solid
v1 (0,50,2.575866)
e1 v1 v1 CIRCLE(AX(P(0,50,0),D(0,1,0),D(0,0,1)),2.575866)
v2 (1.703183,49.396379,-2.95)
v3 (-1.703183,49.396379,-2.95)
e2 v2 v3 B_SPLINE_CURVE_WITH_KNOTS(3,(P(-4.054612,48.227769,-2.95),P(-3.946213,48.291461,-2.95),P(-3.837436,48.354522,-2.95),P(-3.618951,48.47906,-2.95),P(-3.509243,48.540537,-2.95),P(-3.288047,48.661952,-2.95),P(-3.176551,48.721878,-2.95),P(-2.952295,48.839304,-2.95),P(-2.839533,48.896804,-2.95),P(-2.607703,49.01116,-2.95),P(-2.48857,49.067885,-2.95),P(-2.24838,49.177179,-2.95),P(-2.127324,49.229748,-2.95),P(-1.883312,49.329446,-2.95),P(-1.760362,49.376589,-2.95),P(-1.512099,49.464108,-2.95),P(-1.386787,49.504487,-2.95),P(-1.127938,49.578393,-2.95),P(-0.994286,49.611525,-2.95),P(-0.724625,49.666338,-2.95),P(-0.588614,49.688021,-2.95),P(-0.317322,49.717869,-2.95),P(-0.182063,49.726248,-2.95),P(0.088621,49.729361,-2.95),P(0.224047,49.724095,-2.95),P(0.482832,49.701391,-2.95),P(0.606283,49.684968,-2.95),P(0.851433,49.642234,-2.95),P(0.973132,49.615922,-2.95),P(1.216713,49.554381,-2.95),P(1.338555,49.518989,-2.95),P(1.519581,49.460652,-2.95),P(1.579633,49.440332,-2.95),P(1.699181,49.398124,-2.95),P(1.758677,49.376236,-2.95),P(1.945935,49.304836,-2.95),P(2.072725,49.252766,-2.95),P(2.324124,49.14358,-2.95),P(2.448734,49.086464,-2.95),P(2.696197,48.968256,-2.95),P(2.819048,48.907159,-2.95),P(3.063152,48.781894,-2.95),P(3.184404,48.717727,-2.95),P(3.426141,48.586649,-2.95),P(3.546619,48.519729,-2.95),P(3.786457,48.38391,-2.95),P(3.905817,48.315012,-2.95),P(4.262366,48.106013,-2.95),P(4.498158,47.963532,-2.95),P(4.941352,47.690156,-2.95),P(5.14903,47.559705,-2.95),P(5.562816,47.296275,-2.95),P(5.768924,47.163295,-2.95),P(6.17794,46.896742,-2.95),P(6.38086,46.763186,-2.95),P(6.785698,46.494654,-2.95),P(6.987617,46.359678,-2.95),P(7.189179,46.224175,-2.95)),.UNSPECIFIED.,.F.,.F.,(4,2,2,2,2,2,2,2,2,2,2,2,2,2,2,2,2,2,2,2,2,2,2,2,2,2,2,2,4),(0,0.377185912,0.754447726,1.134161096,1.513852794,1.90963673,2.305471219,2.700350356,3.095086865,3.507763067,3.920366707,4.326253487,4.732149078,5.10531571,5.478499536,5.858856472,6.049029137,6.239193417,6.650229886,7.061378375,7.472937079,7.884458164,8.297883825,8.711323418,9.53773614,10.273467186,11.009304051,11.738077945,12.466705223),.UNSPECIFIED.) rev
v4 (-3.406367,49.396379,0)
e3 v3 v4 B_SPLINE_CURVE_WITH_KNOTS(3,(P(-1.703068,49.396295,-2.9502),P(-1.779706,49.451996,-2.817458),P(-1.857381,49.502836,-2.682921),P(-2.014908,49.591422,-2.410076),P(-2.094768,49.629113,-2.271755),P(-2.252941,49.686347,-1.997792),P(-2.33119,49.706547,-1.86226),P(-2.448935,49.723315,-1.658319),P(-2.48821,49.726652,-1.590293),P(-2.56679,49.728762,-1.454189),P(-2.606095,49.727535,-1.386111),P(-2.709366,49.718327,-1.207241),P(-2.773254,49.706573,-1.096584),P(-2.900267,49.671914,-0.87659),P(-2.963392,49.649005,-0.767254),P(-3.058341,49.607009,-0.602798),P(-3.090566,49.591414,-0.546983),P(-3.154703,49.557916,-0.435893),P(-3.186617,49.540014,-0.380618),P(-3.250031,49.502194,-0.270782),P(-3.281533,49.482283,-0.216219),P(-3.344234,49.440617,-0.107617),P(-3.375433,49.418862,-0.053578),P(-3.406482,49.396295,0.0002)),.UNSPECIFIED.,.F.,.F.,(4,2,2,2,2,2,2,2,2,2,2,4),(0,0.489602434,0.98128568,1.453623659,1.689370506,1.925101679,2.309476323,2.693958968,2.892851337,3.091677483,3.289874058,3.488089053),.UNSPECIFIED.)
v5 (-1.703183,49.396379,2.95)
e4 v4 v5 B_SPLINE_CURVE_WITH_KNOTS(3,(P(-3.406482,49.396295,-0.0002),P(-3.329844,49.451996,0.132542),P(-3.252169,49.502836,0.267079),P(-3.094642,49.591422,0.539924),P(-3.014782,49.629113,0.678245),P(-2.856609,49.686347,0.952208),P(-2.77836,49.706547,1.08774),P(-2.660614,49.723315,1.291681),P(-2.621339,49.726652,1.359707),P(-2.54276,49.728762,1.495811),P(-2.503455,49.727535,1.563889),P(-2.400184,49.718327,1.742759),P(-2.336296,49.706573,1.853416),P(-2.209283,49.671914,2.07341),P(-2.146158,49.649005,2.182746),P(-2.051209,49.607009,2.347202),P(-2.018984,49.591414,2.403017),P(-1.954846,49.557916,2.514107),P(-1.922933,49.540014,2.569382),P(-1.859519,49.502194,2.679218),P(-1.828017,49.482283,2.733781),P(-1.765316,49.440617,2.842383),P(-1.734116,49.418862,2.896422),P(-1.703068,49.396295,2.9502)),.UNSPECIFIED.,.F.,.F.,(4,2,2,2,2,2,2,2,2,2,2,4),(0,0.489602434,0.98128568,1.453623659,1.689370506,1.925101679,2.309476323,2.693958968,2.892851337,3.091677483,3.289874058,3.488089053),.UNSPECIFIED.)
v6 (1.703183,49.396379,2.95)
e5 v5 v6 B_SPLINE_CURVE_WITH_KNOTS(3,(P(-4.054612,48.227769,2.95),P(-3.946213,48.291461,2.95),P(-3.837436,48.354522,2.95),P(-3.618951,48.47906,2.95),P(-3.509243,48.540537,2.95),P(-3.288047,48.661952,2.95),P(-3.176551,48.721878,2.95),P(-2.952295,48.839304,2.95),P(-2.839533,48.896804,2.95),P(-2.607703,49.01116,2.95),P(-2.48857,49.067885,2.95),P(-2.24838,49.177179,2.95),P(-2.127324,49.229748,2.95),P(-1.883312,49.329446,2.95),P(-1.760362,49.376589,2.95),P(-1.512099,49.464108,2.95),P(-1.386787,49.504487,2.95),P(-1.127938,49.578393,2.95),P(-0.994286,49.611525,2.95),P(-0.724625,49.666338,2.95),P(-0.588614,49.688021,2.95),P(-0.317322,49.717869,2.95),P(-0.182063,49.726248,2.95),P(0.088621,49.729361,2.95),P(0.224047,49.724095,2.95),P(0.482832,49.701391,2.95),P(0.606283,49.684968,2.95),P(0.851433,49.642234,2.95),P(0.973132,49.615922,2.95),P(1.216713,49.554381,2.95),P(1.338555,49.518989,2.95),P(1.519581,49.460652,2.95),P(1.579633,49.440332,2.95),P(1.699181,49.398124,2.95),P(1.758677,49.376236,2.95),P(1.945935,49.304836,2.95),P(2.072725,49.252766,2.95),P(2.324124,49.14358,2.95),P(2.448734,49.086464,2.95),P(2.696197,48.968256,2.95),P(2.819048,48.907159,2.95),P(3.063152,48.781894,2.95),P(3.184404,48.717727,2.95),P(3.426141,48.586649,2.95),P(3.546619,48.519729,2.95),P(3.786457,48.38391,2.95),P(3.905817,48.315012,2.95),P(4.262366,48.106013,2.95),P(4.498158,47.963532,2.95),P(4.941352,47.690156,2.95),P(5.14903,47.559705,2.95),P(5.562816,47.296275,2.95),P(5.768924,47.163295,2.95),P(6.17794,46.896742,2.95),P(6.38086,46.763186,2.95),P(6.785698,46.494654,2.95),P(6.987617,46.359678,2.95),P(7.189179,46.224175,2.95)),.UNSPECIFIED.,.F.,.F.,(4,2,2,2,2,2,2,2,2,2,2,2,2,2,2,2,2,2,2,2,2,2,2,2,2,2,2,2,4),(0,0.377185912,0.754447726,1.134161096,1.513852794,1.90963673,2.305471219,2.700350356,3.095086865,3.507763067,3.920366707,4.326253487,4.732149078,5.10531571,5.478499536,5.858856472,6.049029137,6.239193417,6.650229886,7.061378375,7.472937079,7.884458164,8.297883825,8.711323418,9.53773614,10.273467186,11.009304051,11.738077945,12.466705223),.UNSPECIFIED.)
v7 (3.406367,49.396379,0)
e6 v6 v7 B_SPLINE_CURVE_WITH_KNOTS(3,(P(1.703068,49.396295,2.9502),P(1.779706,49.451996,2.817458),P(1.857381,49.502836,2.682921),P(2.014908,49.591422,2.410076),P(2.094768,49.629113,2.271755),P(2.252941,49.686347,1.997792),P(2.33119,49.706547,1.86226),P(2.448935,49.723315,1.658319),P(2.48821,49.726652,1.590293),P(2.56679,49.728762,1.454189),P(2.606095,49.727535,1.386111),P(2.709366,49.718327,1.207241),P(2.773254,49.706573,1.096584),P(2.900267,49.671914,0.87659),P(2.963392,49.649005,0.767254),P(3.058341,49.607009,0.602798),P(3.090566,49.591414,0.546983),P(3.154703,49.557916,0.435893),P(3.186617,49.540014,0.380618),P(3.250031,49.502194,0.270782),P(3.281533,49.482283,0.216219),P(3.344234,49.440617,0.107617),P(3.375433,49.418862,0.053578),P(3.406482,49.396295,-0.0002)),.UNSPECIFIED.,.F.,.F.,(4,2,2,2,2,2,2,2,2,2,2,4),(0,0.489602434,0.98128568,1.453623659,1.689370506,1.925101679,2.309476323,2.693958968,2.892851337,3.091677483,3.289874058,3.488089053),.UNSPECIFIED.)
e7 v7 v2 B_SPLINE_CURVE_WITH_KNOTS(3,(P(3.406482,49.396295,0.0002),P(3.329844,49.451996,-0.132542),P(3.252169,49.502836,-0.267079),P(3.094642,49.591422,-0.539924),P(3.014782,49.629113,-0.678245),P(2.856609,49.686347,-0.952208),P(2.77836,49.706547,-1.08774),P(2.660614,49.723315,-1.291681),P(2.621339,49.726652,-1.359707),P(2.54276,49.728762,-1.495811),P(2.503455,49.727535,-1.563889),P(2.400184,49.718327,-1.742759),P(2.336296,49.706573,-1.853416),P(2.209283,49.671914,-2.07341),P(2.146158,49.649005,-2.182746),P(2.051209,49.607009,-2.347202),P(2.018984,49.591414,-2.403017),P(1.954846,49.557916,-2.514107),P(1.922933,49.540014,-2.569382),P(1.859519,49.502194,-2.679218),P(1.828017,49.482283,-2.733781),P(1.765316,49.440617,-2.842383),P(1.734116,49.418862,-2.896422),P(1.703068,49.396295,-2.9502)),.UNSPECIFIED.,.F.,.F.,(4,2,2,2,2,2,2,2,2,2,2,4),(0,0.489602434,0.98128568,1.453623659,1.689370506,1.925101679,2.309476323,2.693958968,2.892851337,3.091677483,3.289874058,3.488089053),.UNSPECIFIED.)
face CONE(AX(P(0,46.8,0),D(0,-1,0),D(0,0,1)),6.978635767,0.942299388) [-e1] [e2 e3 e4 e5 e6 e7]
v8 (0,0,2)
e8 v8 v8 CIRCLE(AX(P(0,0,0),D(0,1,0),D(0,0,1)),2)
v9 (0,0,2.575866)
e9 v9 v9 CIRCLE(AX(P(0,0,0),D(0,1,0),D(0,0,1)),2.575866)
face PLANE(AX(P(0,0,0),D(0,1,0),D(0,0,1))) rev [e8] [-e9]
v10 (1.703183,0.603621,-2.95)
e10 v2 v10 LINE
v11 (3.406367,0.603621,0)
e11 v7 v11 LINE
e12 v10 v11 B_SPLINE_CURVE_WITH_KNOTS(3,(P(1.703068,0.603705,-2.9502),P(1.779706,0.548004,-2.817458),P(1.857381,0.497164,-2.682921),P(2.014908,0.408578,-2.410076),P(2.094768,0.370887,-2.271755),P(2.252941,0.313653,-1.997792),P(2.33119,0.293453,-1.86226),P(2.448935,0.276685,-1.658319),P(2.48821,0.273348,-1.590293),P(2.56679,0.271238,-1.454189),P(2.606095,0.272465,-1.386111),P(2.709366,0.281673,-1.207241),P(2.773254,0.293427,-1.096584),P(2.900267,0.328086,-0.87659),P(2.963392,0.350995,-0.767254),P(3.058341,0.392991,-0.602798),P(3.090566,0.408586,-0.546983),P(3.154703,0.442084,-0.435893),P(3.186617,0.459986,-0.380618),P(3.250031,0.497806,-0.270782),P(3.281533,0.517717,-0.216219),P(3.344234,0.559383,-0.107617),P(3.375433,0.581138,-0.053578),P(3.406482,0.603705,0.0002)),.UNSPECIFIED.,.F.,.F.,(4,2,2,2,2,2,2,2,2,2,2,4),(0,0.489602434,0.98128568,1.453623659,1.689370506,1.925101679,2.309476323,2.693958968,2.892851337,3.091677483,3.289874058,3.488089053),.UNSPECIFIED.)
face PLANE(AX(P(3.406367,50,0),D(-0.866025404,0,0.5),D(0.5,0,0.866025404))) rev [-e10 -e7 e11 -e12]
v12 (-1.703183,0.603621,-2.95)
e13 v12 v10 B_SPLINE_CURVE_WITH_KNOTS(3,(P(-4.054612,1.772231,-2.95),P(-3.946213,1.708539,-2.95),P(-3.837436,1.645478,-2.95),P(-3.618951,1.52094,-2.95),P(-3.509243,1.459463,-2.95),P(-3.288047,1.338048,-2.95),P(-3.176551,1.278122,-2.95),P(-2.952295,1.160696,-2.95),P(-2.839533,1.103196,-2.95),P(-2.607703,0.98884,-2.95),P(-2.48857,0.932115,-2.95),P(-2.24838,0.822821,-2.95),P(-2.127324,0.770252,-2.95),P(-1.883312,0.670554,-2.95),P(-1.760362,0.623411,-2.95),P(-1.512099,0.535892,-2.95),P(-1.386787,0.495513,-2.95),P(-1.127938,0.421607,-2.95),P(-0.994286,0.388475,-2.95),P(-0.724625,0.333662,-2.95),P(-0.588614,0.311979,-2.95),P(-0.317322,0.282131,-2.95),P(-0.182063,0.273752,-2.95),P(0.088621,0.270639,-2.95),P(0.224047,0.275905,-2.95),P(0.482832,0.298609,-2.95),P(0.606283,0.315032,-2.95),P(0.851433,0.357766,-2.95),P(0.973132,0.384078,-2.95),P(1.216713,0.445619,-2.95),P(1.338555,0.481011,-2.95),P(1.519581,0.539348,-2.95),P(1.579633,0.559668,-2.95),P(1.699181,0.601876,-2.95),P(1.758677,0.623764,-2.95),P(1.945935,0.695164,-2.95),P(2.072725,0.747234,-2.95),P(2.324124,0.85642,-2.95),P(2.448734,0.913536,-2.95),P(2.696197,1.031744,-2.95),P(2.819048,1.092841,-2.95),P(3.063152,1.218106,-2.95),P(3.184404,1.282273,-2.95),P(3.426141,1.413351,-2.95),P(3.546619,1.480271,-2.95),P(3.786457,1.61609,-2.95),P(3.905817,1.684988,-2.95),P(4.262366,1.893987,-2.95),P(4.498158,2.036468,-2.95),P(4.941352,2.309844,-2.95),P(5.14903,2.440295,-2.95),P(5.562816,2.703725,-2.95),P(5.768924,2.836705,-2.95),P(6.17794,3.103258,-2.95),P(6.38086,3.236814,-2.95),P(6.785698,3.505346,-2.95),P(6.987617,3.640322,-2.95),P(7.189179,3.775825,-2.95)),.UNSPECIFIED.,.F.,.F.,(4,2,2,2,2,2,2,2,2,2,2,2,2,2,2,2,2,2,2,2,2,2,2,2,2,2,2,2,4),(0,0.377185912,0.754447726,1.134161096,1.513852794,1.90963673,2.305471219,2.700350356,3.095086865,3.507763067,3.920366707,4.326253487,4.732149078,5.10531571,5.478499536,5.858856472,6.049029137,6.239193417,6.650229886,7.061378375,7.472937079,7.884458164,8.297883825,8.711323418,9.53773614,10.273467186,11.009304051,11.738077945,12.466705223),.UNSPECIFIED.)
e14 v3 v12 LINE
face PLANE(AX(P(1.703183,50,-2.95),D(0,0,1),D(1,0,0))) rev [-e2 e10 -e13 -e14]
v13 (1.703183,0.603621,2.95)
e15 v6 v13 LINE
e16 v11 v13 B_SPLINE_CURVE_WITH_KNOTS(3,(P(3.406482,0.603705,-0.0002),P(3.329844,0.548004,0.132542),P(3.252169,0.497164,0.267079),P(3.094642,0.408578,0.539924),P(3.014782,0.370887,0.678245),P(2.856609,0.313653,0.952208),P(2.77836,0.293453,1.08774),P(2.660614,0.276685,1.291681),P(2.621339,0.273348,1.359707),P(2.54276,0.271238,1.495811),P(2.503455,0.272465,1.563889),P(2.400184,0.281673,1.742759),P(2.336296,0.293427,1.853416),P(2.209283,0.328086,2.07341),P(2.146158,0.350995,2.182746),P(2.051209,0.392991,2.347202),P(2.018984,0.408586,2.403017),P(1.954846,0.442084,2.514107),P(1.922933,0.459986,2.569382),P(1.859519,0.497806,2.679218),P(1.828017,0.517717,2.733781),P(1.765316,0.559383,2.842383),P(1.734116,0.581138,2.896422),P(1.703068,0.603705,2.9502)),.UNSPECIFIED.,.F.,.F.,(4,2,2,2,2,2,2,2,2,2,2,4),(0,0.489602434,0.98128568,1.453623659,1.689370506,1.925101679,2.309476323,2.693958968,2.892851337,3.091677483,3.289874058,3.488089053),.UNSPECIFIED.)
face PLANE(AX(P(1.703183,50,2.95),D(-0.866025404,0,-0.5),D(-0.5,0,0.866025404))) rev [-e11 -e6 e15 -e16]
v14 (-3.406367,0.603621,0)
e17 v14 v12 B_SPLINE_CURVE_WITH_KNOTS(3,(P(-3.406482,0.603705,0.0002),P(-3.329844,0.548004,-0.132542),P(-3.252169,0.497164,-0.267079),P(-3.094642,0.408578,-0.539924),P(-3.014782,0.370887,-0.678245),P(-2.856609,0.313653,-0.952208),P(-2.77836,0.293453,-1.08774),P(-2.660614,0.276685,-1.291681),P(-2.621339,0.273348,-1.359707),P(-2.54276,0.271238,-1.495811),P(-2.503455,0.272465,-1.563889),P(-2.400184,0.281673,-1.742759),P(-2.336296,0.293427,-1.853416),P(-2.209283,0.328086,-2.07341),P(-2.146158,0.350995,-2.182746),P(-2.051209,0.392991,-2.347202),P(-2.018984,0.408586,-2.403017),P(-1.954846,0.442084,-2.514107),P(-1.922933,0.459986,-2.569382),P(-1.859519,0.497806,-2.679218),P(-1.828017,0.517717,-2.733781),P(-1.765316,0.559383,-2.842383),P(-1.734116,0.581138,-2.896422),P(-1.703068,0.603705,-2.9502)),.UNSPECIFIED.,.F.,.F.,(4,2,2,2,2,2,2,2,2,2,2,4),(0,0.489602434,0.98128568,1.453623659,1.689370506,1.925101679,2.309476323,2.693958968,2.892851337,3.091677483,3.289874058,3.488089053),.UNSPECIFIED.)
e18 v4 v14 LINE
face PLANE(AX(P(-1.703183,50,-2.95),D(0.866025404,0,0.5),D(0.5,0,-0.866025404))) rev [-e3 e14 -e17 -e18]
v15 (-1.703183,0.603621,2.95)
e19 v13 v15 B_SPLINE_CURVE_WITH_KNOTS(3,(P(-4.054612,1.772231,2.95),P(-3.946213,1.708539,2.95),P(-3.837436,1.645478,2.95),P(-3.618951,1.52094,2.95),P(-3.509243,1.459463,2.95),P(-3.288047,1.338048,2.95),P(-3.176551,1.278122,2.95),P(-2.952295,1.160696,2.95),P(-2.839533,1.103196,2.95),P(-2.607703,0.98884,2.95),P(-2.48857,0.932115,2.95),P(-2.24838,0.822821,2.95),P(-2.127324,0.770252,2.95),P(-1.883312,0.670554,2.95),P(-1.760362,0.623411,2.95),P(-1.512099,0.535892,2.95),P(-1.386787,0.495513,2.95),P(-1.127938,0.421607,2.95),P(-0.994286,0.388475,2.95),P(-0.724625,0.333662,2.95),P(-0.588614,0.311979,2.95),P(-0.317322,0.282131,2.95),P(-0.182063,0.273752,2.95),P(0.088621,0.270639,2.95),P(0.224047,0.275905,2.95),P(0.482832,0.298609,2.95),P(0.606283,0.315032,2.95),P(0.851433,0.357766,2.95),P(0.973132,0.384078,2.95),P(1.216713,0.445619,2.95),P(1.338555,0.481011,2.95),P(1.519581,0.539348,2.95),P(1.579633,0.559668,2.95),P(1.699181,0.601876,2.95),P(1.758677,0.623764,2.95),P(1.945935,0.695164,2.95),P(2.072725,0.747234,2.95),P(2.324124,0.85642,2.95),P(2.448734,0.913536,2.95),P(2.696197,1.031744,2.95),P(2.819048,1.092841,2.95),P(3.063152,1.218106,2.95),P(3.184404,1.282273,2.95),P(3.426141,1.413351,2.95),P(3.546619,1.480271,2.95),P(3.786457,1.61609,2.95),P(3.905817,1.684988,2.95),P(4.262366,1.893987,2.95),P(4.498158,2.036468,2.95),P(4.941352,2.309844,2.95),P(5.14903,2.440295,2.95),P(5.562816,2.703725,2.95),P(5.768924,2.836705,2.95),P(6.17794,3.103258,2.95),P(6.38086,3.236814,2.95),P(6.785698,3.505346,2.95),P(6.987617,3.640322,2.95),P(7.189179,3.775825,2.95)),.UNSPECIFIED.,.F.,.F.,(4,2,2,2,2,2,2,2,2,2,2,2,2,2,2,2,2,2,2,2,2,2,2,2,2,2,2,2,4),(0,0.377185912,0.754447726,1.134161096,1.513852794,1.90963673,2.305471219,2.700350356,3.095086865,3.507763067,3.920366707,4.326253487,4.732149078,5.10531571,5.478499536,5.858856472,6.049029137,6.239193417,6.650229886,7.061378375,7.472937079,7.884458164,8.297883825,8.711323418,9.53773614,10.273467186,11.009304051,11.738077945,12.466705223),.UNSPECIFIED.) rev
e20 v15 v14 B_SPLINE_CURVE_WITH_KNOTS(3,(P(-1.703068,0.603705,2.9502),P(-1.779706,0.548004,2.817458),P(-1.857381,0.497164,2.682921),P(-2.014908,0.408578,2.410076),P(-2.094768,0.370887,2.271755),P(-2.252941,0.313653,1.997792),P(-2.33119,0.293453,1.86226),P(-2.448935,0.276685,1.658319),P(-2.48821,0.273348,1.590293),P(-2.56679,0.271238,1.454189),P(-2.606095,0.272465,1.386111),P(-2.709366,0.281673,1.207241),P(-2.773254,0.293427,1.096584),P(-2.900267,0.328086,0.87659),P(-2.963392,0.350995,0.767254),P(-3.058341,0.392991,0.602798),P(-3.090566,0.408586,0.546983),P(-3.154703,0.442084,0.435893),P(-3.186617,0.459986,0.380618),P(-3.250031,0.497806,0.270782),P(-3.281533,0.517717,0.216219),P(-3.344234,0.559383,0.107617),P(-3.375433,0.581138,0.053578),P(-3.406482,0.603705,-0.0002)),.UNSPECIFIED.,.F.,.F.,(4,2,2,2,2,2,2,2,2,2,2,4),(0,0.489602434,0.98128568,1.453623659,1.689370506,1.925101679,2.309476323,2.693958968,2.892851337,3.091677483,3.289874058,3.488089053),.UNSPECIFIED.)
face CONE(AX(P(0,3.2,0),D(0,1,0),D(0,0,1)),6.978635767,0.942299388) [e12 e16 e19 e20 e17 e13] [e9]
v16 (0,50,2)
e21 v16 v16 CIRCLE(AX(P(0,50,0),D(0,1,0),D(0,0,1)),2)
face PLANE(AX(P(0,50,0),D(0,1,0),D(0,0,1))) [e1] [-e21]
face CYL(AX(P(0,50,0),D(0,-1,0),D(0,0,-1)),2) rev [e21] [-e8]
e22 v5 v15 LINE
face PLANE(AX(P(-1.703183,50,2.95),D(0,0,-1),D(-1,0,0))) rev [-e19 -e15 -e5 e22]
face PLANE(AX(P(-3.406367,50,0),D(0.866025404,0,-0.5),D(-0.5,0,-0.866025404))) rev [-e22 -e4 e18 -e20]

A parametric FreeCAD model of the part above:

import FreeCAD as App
import Part
import Sketcher

V = App.Vector
Q = App.Units.Quantity


def add_polygon(sketch, points):
    """Adds a closed chain of lines whose ends are joined by coincident constraints."""
    first, n = sketch.GeometryCount, len(points)
    for a, b in zip(points, points[1:] + points[:1]):
        sketch.addGeometry(Part.LineSegment(App.Vector(*a, 0), App.Vector(*b, 0)), False)
    for i in range(n):
        sketch.addConstraint(Sketcher.Constraint("Coincident", first + i, 2, first + (i + 1) % n, 1))

doc = App.newDocument("Part")
body = doc.addObject("PartDesign::Body", "Body")

sketch1 = doc.addObject("Sketcher::SketchObject", "Sketch")
body.addObject(sketch1)
sketch1.AttachmentSupport = (doc.XZ_Plane, [""])
sketch1.MapMode = "FlatFace"
add_polygon(sketch1, [(1.7, 3), (3.4, 0), (1.7, -3), (-1.7, -3), (-3.4, 0), (-1.7, 3)])
sketch1.addGeometry(Part.Circle(V(0, 0, 0), V(0, 0, 1), 2), False)
sketch1.addConstraint([
    Sketcher.Constraint("Horizontal", 2),
    Sketcher.Constraint("Horizontal", 5),
    Sketcher.Constraint("Coincident", 6, 3, -1, 1),
    Sketcher.Constraint("Symmetric", 0, 2, 3, 2, -1, 1),
    Sketcher.Constraint("Symmetric", 1, 2, 4, 2, -1, 1),
    Sketcher.Constraint("PointOnObject", 0, 2, -1),
    Sketcher.Constraint("Parallel", 0, 3),
    Sketcher.Constraint("Vertical", 2, 2, 4, 2),
    Sketcher.Constraint("Diameter", 6, 4.0),
    Sketcher.Constraint("Angle", 0, Q("-60 deg")),
    Sketcher.Constraint("DistanceY", 2, 2, 4, 2, 5.9),
    Sketcher.Constraint("DistanceX", 2, 2, 2, 1, 3.406367),
])
pad1 = doc.addObject("PartDesign::Pad", "Pad")
body.addObject(pad1)
pad1.Profile = sketch1
pad1.Length = 50
pad1.Reversed = True

sketch2 = doc.addObject("Sketcher::SketchObject", "Sketch001")
body.addObject(sketch2)
sketch2.AttachmentSupport = (doc.XY_Plane, [""])
sketch2.MapMode = "FlatFace"
add_polygon(sketch2, [(7, 3.2), (1.2, -1), (7, -1)])
sketch2.addConstraint([
    Sketcher.Constraint("Horizontal", 1),
    Sketcher.Constraint("Vertical", 2),
    Sketcher.Constraint("DistanceY", 2, 1, 2, 2, 4.2),
    Sketcher.Constraint("DistanceY", 0, 2, -1, 1, 1.0),
    Sketcher.Constraint("DistanceX", -1, 1, 0, 2, 1.2),
    Sketcher.Constraint("DistanceX", 1, 1, 1, 2, 5.778636),
])
groove = doc.addObject("PartDesign::Groove", "Groove")
body.addObject(groove)
groove.Profile = sketch2
groove.ReferenceAxis = (sketch2, ["V_Axis"])
groove.Angle = 360
doc.recompute()

datumplane = doc.addObject("PartDesign::Plane", "DatumPlane")
body.addObject(datumplane)
datumplane.AttachmentSupport = (doc.XZ_Plane, [""])
datumplane.MapMode = "FlatFace"
datumplane.AttachmentOffset = App.Placement(V(0, 0, -25), App.Rotation())
mirrored = doc.addObject("PartDesign::Mirrored", "Mirrored")
body.addObject(mirrored)
mirrored.Originals = [groove]
mirrored.MirrorPlane = (datumplane, [""])
body.Tip = mirrored

doc.recompute()
